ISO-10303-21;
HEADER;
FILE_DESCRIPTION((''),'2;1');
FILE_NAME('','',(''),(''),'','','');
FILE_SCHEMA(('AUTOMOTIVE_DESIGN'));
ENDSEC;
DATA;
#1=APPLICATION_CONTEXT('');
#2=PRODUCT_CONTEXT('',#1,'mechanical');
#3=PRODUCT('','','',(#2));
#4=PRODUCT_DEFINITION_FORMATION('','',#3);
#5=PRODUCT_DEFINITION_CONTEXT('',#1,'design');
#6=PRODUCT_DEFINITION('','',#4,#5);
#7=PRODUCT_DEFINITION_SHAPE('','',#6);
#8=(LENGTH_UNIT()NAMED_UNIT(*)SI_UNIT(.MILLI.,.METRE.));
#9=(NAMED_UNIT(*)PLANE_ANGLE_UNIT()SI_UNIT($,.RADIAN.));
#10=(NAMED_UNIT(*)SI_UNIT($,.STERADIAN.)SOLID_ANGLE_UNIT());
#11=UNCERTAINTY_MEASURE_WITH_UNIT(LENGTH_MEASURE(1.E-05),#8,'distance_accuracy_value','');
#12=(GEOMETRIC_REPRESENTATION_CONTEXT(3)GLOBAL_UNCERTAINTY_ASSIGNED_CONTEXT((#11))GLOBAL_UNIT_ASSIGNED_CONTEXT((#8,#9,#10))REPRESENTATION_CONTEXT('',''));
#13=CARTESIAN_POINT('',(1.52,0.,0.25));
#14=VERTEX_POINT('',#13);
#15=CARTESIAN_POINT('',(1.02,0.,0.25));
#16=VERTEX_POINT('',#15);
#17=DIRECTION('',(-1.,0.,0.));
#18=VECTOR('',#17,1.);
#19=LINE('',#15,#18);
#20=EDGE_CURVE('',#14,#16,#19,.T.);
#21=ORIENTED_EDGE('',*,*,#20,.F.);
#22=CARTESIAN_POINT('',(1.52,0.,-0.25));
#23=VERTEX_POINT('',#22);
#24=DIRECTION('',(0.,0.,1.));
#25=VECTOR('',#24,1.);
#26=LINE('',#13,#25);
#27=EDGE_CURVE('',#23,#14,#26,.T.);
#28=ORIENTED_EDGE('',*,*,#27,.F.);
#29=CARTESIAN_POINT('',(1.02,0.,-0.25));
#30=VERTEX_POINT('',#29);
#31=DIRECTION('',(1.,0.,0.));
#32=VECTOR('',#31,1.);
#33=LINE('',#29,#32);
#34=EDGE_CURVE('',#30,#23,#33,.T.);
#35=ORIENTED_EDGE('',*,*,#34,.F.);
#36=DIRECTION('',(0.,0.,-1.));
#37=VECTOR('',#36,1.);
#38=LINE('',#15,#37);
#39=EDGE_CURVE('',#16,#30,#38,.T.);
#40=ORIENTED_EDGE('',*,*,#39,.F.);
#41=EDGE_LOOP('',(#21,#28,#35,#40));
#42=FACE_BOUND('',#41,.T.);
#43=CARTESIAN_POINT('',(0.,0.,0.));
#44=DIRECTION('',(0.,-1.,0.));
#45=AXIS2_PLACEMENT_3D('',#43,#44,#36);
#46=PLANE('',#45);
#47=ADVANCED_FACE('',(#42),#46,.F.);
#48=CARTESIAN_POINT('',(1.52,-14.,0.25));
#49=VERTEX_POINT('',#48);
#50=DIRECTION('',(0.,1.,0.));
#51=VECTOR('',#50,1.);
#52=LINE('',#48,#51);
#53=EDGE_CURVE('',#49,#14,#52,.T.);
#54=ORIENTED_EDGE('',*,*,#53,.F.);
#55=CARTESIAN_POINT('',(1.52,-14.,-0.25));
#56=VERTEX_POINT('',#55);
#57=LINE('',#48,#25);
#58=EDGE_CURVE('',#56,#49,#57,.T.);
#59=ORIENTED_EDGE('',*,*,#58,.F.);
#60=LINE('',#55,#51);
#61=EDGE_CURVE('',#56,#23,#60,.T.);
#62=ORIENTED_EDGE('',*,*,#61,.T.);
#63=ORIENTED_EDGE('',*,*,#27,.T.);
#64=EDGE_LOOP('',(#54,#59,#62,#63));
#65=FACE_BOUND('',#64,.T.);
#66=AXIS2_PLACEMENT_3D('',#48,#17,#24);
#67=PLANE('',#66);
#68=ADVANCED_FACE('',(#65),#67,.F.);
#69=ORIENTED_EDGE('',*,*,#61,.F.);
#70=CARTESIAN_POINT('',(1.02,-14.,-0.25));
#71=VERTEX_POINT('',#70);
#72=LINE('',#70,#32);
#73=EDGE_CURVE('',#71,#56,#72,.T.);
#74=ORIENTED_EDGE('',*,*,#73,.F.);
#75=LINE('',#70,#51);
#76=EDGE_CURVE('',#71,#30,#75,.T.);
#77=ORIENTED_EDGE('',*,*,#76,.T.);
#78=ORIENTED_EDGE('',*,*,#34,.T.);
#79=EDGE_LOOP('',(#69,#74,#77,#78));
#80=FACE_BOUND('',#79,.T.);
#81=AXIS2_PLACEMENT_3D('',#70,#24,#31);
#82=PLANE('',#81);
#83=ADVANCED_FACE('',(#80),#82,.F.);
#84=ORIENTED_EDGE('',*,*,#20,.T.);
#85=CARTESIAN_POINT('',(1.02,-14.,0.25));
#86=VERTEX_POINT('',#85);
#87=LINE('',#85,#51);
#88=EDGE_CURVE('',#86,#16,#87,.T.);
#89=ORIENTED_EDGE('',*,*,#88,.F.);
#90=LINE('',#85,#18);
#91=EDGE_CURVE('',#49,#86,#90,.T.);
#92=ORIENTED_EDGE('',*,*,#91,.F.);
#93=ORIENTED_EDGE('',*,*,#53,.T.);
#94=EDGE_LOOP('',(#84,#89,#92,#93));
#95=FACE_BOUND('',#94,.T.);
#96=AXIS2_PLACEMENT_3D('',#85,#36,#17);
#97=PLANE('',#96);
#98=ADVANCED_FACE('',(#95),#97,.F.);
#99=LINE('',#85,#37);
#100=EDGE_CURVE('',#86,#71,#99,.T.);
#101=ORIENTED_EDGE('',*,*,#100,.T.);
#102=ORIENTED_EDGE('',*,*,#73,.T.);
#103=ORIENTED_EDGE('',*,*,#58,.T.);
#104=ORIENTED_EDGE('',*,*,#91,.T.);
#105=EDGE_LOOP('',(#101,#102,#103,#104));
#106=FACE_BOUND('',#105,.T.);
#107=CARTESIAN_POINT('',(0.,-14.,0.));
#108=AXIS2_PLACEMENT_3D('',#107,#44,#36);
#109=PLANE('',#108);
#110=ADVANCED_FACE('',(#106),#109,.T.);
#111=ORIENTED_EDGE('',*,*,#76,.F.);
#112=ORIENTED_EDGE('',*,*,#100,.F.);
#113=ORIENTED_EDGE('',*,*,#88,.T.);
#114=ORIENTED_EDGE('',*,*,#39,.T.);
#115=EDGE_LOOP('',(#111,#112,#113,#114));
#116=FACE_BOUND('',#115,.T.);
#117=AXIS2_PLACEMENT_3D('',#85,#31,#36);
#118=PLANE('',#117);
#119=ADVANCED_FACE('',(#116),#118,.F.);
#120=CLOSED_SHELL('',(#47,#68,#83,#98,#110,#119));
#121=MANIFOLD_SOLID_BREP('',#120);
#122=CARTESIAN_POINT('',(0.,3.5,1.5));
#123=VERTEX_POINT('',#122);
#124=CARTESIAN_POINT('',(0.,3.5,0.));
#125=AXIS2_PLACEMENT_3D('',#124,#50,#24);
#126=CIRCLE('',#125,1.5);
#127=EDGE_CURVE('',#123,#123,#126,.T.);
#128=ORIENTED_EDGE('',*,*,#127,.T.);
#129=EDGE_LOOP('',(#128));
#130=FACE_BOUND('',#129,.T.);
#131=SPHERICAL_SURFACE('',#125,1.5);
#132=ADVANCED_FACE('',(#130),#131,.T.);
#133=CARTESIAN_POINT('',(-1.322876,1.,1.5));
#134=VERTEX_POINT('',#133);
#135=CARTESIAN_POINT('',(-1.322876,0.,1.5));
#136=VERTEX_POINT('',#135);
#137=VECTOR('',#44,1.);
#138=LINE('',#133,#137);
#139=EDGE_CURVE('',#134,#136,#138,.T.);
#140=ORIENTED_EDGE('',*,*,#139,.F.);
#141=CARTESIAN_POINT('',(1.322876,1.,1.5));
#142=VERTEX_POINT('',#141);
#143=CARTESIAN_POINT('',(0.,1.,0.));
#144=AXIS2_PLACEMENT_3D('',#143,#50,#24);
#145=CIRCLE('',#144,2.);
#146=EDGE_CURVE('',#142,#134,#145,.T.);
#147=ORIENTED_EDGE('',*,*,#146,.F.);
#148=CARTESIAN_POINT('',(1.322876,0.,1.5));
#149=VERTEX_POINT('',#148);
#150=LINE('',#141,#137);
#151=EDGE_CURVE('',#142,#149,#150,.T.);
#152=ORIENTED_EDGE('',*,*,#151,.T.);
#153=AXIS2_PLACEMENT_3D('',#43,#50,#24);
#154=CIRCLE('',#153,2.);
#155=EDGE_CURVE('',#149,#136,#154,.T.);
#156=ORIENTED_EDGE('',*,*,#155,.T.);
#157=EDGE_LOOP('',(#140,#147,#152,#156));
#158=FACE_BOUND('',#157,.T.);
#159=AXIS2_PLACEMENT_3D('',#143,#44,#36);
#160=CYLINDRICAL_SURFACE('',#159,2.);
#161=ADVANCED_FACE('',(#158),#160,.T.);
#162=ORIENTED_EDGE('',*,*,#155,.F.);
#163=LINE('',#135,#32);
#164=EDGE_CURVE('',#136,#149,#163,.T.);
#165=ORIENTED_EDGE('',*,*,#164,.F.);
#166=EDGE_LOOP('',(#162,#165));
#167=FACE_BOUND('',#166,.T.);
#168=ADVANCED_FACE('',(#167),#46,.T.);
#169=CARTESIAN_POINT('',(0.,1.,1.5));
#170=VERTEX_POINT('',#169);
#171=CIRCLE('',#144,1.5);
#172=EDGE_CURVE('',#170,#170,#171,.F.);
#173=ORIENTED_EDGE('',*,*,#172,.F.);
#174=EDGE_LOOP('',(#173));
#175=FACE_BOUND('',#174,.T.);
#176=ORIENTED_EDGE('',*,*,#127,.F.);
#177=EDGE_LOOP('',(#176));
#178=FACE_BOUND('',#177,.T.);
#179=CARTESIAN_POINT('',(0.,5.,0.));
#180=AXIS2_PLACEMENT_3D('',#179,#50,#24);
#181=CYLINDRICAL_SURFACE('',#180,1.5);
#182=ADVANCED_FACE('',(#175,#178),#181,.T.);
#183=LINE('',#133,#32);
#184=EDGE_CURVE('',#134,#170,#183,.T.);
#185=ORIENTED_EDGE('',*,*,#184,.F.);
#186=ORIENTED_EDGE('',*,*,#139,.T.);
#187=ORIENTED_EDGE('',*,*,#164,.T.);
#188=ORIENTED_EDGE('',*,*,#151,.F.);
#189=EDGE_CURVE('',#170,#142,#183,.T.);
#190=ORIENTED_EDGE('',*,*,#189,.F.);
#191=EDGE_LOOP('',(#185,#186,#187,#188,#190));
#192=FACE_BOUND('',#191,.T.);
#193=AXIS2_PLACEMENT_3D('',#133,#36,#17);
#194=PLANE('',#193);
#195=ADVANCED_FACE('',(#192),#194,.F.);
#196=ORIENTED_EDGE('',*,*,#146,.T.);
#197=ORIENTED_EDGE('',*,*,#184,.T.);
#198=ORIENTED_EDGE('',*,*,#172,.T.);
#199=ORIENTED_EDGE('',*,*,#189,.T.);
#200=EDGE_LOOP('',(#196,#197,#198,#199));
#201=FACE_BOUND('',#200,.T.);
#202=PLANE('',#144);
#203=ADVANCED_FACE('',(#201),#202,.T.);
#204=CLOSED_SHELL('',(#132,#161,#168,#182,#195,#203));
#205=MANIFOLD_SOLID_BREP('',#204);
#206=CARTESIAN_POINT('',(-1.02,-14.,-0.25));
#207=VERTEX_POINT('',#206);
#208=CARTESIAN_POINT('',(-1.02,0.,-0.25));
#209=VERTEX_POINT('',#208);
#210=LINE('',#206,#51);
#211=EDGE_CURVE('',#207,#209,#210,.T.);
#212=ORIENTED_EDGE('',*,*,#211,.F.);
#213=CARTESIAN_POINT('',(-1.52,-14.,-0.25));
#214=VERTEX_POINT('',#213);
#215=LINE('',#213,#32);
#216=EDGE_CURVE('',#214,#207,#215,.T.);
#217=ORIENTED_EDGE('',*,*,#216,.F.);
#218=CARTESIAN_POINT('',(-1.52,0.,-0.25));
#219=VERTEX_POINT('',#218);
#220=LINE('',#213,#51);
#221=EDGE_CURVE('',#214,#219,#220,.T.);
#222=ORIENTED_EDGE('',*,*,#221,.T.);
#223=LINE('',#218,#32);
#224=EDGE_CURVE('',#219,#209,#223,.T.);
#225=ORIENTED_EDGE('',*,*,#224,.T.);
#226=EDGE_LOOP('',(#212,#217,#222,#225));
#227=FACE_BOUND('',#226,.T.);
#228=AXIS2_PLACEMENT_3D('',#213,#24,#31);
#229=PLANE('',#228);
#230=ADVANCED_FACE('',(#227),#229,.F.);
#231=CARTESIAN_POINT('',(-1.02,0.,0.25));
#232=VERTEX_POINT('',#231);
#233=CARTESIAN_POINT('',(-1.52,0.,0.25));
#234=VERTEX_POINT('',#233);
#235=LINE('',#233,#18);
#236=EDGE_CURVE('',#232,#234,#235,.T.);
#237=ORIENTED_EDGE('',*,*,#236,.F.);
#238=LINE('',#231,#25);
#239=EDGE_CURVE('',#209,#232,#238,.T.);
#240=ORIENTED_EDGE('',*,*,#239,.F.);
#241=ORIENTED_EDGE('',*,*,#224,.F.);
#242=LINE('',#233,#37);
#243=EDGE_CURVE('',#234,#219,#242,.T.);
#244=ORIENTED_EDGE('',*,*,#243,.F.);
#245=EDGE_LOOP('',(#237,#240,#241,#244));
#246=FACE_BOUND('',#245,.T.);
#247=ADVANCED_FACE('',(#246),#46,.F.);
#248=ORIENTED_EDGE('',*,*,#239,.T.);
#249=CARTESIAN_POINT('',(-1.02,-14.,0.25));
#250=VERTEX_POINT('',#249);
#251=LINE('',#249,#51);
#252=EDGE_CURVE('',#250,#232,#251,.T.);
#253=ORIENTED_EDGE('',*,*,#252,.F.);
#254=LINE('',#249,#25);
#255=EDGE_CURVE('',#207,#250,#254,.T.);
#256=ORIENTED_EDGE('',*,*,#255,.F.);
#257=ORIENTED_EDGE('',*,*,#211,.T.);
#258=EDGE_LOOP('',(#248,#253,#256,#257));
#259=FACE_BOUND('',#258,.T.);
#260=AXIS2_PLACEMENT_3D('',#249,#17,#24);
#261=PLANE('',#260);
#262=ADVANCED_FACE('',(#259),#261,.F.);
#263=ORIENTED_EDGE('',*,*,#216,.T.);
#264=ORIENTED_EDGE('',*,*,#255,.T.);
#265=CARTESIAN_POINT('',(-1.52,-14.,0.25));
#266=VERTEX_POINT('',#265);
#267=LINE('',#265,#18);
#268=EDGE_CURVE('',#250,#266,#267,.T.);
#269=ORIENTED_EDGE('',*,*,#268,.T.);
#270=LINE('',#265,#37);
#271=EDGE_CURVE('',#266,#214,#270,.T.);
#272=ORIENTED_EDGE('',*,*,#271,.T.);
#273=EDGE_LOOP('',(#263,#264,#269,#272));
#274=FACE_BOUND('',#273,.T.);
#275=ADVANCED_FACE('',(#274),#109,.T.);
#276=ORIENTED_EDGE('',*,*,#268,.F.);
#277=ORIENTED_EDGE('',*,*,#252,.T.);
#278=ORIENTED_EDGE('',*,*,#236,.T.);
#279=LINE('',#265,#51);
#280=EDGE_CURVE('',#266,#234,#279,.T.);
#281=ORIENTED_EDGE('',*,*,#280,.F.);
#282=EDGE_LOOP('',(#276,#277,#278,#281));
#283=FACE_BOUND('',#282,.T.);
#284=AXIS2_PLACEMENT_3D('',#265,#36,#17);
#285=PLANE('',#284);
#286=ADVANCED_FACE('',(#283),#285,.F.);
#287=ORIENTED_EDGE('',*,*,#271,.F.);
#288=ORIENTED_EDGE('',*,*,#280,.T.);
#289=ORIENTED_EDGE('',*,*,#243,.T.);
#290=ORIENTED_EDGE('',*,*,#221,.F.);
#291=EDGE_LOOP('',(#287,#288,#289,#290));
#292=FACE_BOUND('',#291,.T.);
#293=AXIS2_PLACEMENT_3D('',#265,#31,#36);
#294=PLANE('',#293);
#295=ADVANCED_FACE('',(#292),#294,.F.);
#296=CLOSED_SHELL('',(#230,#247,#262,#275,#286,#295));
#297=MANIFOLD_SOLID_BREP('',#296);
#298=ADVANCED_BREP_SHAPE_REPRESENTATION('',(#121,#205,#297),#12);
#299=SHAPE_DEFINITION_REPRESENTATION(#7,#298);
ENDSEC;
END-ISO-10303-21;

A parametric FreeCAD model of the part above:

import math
import FreeCAD as App
import Part
import Sketcher

V = App.Vector


def add_polygon(sketch, points):
    """Adds a closed chain of lines whose ends are joined by coincident constraints."""
    first, n = sketch.GeometryCount, len(points)
    for a, b in zip(points, points[1:] + points[:1]):
        sketch.addGeometry(Part.LineSegment(App.Vector(*a, 0), App.Vector(*b, 0)), False)
    for i in range(n):
        sketch.addConstraint(Sketcher.Constraint("Coincident", first + i, 2, first + (i + 1) % n, 1))

doc = App.newDocument("Part")
body = doc.addObject("PartDesign::Body", "Body")

# Sketch on YZ plane
sketch1 = body.newObject("Sketcher::SketchObject", "Sketch")
sketch1.AttachmentSupport = (doc.getObject("YZ_Plane"), [""])
sketch1.MapMode = "FlatFace"
sketch1.addGeometry([
    Part.LineSegment(V(3.5, 1.5, 0), V(0, 1.5, 0)),
    Part.LineSegment(V(0, 1.5, 0), V(0, 0, 0)),
    Part.LineSegment(V(0, 0, 0), V(5, 0, 0)),
    Part.ArcOfCircle(Part.Circle(V(3.5, 0, 0), V(0, 0, 1), 1.5), math.radians(0), math.radians(90)),
], False)
sketch1.addConstraint([
    Sketcher.Constraint("Coincident", 0, 2, 1, 1),
    Sketcher.Constraint("Coincident", 1, 2, 2, 1),
    Sketcher.Constraint("Coincident", 2, 2, 3, 1),
    Sketcher.Constraint("Tangent", 3, 2, 0, 1),
    Sketcher.Constraint("Horizontal", 0),
    Sketcher.Constraint("Vertical", 1),
    Sketcher.Constraint("Horizontal", 2),
    Sketcher.Constraint("Coincident", 1, 2, -1, 1),
    Sketcher.Constraint("PointOnObject", 3, 3, -1),
    Sketcher.Constraint("Radius", 3, 1.5),
    Sketcher.Constraint("DistanceX", 2, 1, 2, 2, 5.0),
])
revolution = body.newObject("PartDesign::Revolution", "Revolution")
revolution.Profile = sketch1
revolution.ReferenceAxis = (sketch1, ["H_Axis"])
revolution.Angle = 360

# Sketch on XZ plane
sketch2 = body.newObject("Sketcher::SketchObject", "Sketch001")
sketch2.AttachmentSupport = (doc.getObject("XZ_Plane"), [""])
sketch2.MapMode = "FlatFace"
sketch2.addGeometry([
    Part.LineSegment(V(-1.3, 1.5, 0), V(1.3, 1.5, 0)),
    Part.ArcOfCircle(Part.Circle(V(0, 0, 0), V(0, 0, 1), 2), math.radians(131), math.radians(409)),
], False)
sketch2.addConstraint([
    Sketcher.Constraint("Coincident", 0, 1, 1, 1),
    Sketcher.Constraint("Coincident", 1, 2, 0, 2),
    Sketcher.Constraint("Horizontal", 0),
    Sketcher.Constraint("Coincident", 1, 3, -1, 1),
    Sketcher.Constraint("Radius", 1, 2.0),
    Sketcher.Constraint("DistanceY", -1, 1, 0, 1, 1.5),
])
pad1 = body.newObject("PartDesign::Pad", "Pad")
pad1.Profile = sketch2
pad1.Length = 1
pad1.Reversed = True
body2 = doc.addObject("PartDesign::Body", "Body001")

# Sketch on XZ plane
sketch3 = body2.newObject("Sketcher::SketchObject", "Sketch002")
sketch3.AttachmentSupport = (doc.getObject("XZ_Plane001"), [""])
sketch3.MapMode = "FlatFace"
add_polygon(sketch3, [(-1.5, 0.2), (-1.5, -0.2), (-1, -0.2), (-1, 0.2)])  # lines 0-3
sketch3.addConstraint([
    Sketcher.Constraint("Vertical", 0),
    Sketcher.Constraint("Horizontal", 1),
    Sketcher.Constraint("Vertical", 2),
    Sketcher.Constraint("Horizontal", 3),
    Sketcher.Constraint("Equal", 3, 0),
    Sketcher.Constraint("DistanceX", 1, 1, 1, 2, 0.5),
    Sketcher.Constraint("DistanceX", 0, 2, -1, 1, 1.52),
    Sketcher.Constraint("DistanceY", 0, 2, -1, 1, 0.25),
])
pad2 = body2.newObject("PartDesign::Pad", "Pad001")
pad2.Profile = sketch3
pad2.Length = 14
body3 = doc.addObject("PartDesign::Body", "Body002")

# Sketch on XZ plane
sketch4 = body3.newObject("Sketcher::SketchObject", "Sketch003")
sketch4.AttachmentSupport = (doc.getObject("XZ_Plane002"), [""])
sketch4.MapMode = "FlatFace"
add_polygon(sketch4, [(1, 0.2), (1, -0.2), (1.5, -0.2), (1.5, 0.2)])  # lines 0-3
sketch4.addConstraint([
    Sketcher.Constraint("Vertical", 0),
    Sketcher.Constraint("Horizontal", 1),
    Sketcher.Constraint("Vertical", 2),
    Sketcher.Constraint("Horizontal", 3),
    Sketcher.Constraint("Equal", 3, 0),
    Sketcher.Constraint("DistanceX", 1, 1, 1, 2, 0.5),
    Sketcher.Constraint("DistanceX", -1, 1, 0, 2, 1.02),
    Sketcher.Constraint("DistanceY", 0, 2, -1, 1, 0.25),
])
pad3 = body3.newObject("PartDesign::Pad", "Pad002")
pad3.Profile = sketch4
pad3.Length = 14

doc.recompute()
